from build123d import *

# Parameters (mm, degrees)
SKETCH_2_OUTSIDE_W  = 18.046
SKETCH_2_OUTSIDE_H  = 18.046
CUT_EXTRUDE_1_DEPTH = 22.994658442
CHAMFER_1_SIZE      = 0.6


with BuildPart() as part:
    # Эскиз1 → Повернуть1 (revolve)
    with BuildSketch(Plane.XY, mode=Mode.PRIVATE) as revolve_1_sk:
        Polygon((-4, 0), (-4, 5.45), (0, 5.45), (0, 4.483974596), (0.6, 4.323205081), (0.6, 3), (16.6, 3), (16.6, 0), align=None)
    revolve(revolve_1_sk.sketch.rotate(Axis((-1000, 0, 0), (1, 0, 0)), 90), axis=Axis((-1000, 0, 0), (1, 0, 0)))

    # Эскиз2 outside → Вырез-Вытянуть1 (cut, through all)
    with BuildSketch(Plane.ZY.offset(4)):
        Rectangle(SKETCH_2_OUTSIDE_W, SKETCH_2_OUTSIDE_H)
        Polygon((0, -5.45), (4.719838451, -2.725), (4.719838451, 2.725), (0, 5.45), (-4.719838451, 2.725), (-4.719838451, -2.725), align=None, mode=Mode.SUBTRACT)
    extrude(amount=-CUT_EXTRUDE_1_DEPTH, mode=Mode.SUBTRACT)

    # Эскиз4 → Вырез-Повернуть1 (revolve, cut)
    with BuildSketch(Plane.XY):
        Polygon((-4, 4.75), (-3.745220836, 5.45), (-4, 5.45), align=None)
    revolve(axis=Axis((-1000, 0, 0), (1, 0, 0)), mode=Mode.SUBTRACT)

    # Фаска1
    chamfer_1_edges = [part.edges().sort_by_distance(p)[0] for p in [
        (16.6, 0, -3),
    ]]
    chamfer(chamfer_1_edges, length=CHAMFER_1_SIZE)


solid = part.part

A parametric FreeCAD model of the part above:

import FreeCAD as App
import Part
import Sketcher
Q = App.Units.Quantity


def edges_at(feature, points):
    """Names of the edges that pass closest to the given points."""
    edges = feature.Shape.Edges
    near = lambda p: min(range(len(edges)), key=lambda i: edges[i].distToShape(Part.Vertex(*p))[0])
    return sorted({f"Edge{near(p) + 1}" for p in points})

doc = App.newDocument("Part")
body = doc.addObject("PartDesign::Body", "Body")

# Sketch on XY plane
sketch1 = body.newObject("Sketcher::SketchObject", "Sketch")
sketch1.AttachmentSupport = (doc.getObject("XY_Plane"), [""])
sketch1.MapMode = "FlatFace"
sketch1.addGeometry(Part.LineSegment(App.Vector(-4, 5.45, 0), App.Vector(-4, 0, 0)), False)
sketch1.addGeometry(Part.LineSegment(App.Vector(-4, 0, 0), App.Vector(16.6, 0, 0)), False)
sketch1.addGeometry(Part.LineSegment(App.Vector(16.6, 0, 0), App.Vector(16.6, 3, 0)), False)
sketch1.addGeometry(Part.LineSegment(App.Vector(16.6, 3, 0), App.Vector(0.6, 3, 0)), False)
sketch1.addGeometry(Part.LineSegment(App.Vector(0.6, 3, 0), App.Vector(0.6, 4.323205, 0)), False)
sketch1.addGeometry(Part.LineSegment(App.Vector(0.6, 4.323205, 0), App.Vector(0, 4.483975, 0)), False)
sketch1.addGeometry(Part.LineSegment(App.Vector(0, 4.483975, 0), App.Vector(0, 5.45, 0)), False)
sketch1.addGeometry(Part.LineSegment(App.Vector(0, 5.45, 0), App.Vector(-4, 5.45, 0)), False)
sketch1.addConstraint(Sketcher.Constraint("Coincident", 0, 2, 1, 1))
sketch1.addConstraint(Sketcher.Constraint("Coincident", 1, 2, 2, 1))
sketch1.addConstraint(Sketcher.Constraint("Coincident", 2, 2, 3, 1))
sketch1.addConstraint(Sketcher.Constraint("Coincident", 3, 2, 4, 1))
sketch1.addConstraint(Sketcher.Constraint("Coincident", 4, 2, 5, 1))
sketch1.addConstraint(Sketcher.Constraint("Coincident", 5, 2, 6, 1))
sketch1.addConstraint(Sketcher.Constraint("Coincident", 6, 2, 7, 1))
sketch1.addConstraint(Sketcher.Constraint("Coincident", 7, 2, 0, 1))
sketch1.addConstraint(Sketcher.Constraint("Vertical", 0))
sketch1.addConstraint(Sketcher.Constraint("Horizontal", 1))
sketch1.addConstraint(Sketcher.Constraint("Vertical", 2))
sketch1.addConstraint(Sketcher.Constraint("Horizontal", 3))
sketch1.addConstraint(Sketcher.Constraint("Vertical", 4))
sketch1.addConstraint(Sketcher.Constraint("Vertical", 6))
sketch1.addConstraint(Sketcher.Constraint("Horizontal", 7))
sketch1.addConstraint(Sketcher.Constraint("PointOnObject", 0, 2, -1))
sketch1.addConstraint(Sketcher.Constraint("PointOnObject", 5, 2, -2))
sketch1.addConstraint(Sketcher.Constraint("DistanceX", 3, 2, 3, 1, Q("16 mm")))
sketch1.addConstraint(Sketcher.Constraint("DistanceX", 7, 2, 7, 1, Q("4 mm")))
sketch1.addConstraint(Sketcher.Constraint("DistanceY", 2, 1, 2, 2, Q("3 mm")))
sketch1.addConstraint(Sketcher.Constraint("Angle", 5, Q("165 deg")))
sketch1.addConstraint(Sketcher.Constraint("DistanceX", 1, 1, 1, 2, Q("20.6 mm")))
sketch1.addConstraint(Sketcher.Constraint("DistanceY", 0, 2, 0, 1, Q("5.45 mm")))
sketch1.addConstraint(Sketcher.Constraint("DistanceY", 4, 1, 4, 2, Q("1.323205 mm")))
revolution = body.newObject("PartDesign::Revolution", "Revolution")
revolution.Profile = sketch1
revolution.ReferenceAxis = (sketch1, ["H_Axis"])
revolution.Angle = 360

# Sketch on YZ plane
sketch2 = body.newObject("Sketcher::SketchObject", "Sketch001")
sketch2.AttachmentSupport = (doc.getObject("YZ_Plane"), [""])
sketch2.MapMode = "FlatFace"
sketch2.AttachmentOffset = App.Placement(App.Vector(0, 0, -4), App.Rotation())
sketch2.addGeometry(Part.LineSegment(App.Vector(9.023, -9.023, 0), App.Vector(-9.023, -9.023, 0)), False)
sketch2.addGeometry(Part.LineSegment(App.Vector(-9.023, -9.023, 0), App.Vector(-9.023, 9.023, 0)), False)
sketch2.addGeometry(Part.LineSegment(App.Vector(-9.023, 9.023, 0), App.Vector(9.023, 9.023, 0)), False)
sketch2.addGeometry(Part.LineSegment(App.Vector(9.023, 9.023, 0), App.Vector(9.023, -9.023, 0)), False)
sketch2.addGeometry(Part.LineSegment(App.Vector(-2.725, 4.719838, 0), App.Vector(-5.45, 0, 0)), False)
sketch2.addGeometry(Part.LineSegment(App.Vector(-5.45, 0, 0), App.Vector(-2.725, -4.719838, 0)), False)
sketch2.addGeometry(Part.LineSegment(App.Vector(-2.725, -4.719838, 0), App.Vector(2.725, -4.719838, 0)), False)
sketch2.addGeometry(Part.LineSegment(App.Vector(2.725, -4.719838, 0), App.Vector(5.45, 0, 0)), False)
sketch2.addGeometry(Part.LineSegment(App.Vector(5.45, 0, 0), App.Vector(2.725, 4.719838, 0)), False)
sketch2.addGeometry(Part.LineSegment(App.Vector(2.725, 4.719838, 0), App.Vector(-2.725, 4.719838, 0)), False)
sketch2.addConstraint(Sketcher.Constraint("Coincident", 0, 2, 1, 1))
sketch2.addConstraint(Sketcher.Constraint("Coincident", 1, 2, 2, 1))
sketch2.addConstraint(Sketcher.Constraint("Coincident", 2, 2, 3, 1))
sketch2.addConstraint(Sketcher.Constraint("Coincident", 3, 2, 0, 1))
sketch2.addConstraint(Sketcher.Constraint("Coincident", 4, 2, 5, 1))
sketch2.addConstraint(Sketcher.Constraint("Coincident", 5, 2, 6, 1))
sketch2.addConstraint(Sketcher.Constraint("Coincident", 6, 2, 7, 1))
sketch2.addConstraint(Sketcher.Constraint("Coincident", 7, 2, 8, 1))
sketch2.addConstraint(Sketcher.Constraint("Coincident", 8, 2, 9, 1))
sketch2.addConstraint(Sketcher.Constraint("Coincident", 9, 2, 4, 1))
sketch2.addConstraint(Sketcher.Constraint("Horizontal", 0))
sketch2.addConstraint(Sketcher.Constraint("Vertical", 1))
sketch2.addConstraint(Sketcher.Constraint("Horizontal", 2))
sketch2.addConstraint(Sketcher.Constraint("Vertical", 3))
sketch2.addConstraint(Sketcher.Constraint("Horizontal", 6))
sketch2.addConstraint(Sketcher.Constraint("Horizontal", 9))
sketch2.addConstraint(Sketcher.Constraint("Symmetric", 0, 2, 2, 2, -1, 1))
sketch2.addConstraint(Sketcher.Constraint("Symmetric", 4, 2, 7, 2, -1, 1))
sketch2.addConstraint(Sketcher.Constraint("Symmetric", 5, 2, 8, 2, -1, 1))
sketch2.addConstraint(Sketcher.Constraint("PointOnObject", 4, 2, -1))
sketch2.addConstraint(Sketcher.Constraint("Parallel", 4, 7))
sketch2.addConstraint(Sketcher.Constraint("Vertical", 6, 2, 8, 2))
sketch2.addConstraint(Sketcher.Constraint("Equal", 2, 1))
sketch2.addConstraint(Sketcher.Constraint("Angle", 4, Q("-120 deg")))
sketch2.addConstraint(Sketcher.Constraint("DistanceX", 6, 1, 6, 2, Q("5.45 mm")))
sketch2.addConstraint(Sketcher.Constraint("DistanceX", 4, 2, 7, 2, Q("10.9 mm")))
sketch2.addConstraint(Sketcher.Constraint("DistanceX", 0, 2, 0, 1, Q("18.046 mm")))
pocket1 = body.newObject("PartDesign::Pocket", "Pocket")
pocket1.Profile = sketch2
pocket1.Type = "ThroughAll"
pocket1.Reversed = True

# Sketch on XY plane
sketch3 = body.newObject("Sketcher::SketchObject", "Sketch002")
sketch3.AttachmentSupport = (doc.getObject("XY_Plane"), [""])
sketch3.MapMode = "FlatFace"
sketch3.addGeometry(Part.LineSegment(App.Vector(-4, 4.75, 0), App.Vector(-3.745221, 5.45, 0)), False)
sketch3.addGeometry(Part.LineSegment(App.Vector(-3.745221, 5.45, 0), App.Vector(-4, 5.45, 0)), False)
sketch3.addGeometry(Part.LineSegment(App.Vector(-4, 5.45, 0), App.Vector(-4, 4.75, 0)), False)
sketch3.addConstraint(Sketcher.Constraint("Coincident", 0, 2, 1, 1))
sketch3.addConstraint(Sketcher.Constraint("Coincident", 1, 2, 2, 1))
sketch3.addConstraint(Sketcher.Constraint("Coincident", 2, 2, 0, 1))
sketch3.addConstraint(Sketcher.Constraint("Horizontal", 1))
sketch3.addConstraint(Sketcher.Constraint("Vertical", 2))
sketch3.addConstraint(Sketcher.Constraint("Angle", 0, Q("70 deg")))
sketch3.addConstraint(Sketcher.Constraint("DistanceY", 2, 2, 2, 1, Q("0.7 mm")))
sketch3.addConstraint(Sketcher.Constraint("DistanceX", 1, 2, -1, 1, Q("4 mm")))
sketch3.addConstraint(Sketcher.Constraint("DistanceY", -1, 1, 0, 2, Q("5.45 mm")))
groove = body.newObject("PartDesign::Groove", "Groove")
groove.Profile = sketch3
groove.ReferenceAxis = (sketch3, ["H_Axis"])
groove.Angle = 360
doc.recompute()

chamfer = body.newObject("PartDesign::Chamfer", "Chamfer")
chamfer.Base = (groove, edges_at(groove, [(16.6, 0, -3)]))
chamfer.Size = 0.6

doc.recompute()
